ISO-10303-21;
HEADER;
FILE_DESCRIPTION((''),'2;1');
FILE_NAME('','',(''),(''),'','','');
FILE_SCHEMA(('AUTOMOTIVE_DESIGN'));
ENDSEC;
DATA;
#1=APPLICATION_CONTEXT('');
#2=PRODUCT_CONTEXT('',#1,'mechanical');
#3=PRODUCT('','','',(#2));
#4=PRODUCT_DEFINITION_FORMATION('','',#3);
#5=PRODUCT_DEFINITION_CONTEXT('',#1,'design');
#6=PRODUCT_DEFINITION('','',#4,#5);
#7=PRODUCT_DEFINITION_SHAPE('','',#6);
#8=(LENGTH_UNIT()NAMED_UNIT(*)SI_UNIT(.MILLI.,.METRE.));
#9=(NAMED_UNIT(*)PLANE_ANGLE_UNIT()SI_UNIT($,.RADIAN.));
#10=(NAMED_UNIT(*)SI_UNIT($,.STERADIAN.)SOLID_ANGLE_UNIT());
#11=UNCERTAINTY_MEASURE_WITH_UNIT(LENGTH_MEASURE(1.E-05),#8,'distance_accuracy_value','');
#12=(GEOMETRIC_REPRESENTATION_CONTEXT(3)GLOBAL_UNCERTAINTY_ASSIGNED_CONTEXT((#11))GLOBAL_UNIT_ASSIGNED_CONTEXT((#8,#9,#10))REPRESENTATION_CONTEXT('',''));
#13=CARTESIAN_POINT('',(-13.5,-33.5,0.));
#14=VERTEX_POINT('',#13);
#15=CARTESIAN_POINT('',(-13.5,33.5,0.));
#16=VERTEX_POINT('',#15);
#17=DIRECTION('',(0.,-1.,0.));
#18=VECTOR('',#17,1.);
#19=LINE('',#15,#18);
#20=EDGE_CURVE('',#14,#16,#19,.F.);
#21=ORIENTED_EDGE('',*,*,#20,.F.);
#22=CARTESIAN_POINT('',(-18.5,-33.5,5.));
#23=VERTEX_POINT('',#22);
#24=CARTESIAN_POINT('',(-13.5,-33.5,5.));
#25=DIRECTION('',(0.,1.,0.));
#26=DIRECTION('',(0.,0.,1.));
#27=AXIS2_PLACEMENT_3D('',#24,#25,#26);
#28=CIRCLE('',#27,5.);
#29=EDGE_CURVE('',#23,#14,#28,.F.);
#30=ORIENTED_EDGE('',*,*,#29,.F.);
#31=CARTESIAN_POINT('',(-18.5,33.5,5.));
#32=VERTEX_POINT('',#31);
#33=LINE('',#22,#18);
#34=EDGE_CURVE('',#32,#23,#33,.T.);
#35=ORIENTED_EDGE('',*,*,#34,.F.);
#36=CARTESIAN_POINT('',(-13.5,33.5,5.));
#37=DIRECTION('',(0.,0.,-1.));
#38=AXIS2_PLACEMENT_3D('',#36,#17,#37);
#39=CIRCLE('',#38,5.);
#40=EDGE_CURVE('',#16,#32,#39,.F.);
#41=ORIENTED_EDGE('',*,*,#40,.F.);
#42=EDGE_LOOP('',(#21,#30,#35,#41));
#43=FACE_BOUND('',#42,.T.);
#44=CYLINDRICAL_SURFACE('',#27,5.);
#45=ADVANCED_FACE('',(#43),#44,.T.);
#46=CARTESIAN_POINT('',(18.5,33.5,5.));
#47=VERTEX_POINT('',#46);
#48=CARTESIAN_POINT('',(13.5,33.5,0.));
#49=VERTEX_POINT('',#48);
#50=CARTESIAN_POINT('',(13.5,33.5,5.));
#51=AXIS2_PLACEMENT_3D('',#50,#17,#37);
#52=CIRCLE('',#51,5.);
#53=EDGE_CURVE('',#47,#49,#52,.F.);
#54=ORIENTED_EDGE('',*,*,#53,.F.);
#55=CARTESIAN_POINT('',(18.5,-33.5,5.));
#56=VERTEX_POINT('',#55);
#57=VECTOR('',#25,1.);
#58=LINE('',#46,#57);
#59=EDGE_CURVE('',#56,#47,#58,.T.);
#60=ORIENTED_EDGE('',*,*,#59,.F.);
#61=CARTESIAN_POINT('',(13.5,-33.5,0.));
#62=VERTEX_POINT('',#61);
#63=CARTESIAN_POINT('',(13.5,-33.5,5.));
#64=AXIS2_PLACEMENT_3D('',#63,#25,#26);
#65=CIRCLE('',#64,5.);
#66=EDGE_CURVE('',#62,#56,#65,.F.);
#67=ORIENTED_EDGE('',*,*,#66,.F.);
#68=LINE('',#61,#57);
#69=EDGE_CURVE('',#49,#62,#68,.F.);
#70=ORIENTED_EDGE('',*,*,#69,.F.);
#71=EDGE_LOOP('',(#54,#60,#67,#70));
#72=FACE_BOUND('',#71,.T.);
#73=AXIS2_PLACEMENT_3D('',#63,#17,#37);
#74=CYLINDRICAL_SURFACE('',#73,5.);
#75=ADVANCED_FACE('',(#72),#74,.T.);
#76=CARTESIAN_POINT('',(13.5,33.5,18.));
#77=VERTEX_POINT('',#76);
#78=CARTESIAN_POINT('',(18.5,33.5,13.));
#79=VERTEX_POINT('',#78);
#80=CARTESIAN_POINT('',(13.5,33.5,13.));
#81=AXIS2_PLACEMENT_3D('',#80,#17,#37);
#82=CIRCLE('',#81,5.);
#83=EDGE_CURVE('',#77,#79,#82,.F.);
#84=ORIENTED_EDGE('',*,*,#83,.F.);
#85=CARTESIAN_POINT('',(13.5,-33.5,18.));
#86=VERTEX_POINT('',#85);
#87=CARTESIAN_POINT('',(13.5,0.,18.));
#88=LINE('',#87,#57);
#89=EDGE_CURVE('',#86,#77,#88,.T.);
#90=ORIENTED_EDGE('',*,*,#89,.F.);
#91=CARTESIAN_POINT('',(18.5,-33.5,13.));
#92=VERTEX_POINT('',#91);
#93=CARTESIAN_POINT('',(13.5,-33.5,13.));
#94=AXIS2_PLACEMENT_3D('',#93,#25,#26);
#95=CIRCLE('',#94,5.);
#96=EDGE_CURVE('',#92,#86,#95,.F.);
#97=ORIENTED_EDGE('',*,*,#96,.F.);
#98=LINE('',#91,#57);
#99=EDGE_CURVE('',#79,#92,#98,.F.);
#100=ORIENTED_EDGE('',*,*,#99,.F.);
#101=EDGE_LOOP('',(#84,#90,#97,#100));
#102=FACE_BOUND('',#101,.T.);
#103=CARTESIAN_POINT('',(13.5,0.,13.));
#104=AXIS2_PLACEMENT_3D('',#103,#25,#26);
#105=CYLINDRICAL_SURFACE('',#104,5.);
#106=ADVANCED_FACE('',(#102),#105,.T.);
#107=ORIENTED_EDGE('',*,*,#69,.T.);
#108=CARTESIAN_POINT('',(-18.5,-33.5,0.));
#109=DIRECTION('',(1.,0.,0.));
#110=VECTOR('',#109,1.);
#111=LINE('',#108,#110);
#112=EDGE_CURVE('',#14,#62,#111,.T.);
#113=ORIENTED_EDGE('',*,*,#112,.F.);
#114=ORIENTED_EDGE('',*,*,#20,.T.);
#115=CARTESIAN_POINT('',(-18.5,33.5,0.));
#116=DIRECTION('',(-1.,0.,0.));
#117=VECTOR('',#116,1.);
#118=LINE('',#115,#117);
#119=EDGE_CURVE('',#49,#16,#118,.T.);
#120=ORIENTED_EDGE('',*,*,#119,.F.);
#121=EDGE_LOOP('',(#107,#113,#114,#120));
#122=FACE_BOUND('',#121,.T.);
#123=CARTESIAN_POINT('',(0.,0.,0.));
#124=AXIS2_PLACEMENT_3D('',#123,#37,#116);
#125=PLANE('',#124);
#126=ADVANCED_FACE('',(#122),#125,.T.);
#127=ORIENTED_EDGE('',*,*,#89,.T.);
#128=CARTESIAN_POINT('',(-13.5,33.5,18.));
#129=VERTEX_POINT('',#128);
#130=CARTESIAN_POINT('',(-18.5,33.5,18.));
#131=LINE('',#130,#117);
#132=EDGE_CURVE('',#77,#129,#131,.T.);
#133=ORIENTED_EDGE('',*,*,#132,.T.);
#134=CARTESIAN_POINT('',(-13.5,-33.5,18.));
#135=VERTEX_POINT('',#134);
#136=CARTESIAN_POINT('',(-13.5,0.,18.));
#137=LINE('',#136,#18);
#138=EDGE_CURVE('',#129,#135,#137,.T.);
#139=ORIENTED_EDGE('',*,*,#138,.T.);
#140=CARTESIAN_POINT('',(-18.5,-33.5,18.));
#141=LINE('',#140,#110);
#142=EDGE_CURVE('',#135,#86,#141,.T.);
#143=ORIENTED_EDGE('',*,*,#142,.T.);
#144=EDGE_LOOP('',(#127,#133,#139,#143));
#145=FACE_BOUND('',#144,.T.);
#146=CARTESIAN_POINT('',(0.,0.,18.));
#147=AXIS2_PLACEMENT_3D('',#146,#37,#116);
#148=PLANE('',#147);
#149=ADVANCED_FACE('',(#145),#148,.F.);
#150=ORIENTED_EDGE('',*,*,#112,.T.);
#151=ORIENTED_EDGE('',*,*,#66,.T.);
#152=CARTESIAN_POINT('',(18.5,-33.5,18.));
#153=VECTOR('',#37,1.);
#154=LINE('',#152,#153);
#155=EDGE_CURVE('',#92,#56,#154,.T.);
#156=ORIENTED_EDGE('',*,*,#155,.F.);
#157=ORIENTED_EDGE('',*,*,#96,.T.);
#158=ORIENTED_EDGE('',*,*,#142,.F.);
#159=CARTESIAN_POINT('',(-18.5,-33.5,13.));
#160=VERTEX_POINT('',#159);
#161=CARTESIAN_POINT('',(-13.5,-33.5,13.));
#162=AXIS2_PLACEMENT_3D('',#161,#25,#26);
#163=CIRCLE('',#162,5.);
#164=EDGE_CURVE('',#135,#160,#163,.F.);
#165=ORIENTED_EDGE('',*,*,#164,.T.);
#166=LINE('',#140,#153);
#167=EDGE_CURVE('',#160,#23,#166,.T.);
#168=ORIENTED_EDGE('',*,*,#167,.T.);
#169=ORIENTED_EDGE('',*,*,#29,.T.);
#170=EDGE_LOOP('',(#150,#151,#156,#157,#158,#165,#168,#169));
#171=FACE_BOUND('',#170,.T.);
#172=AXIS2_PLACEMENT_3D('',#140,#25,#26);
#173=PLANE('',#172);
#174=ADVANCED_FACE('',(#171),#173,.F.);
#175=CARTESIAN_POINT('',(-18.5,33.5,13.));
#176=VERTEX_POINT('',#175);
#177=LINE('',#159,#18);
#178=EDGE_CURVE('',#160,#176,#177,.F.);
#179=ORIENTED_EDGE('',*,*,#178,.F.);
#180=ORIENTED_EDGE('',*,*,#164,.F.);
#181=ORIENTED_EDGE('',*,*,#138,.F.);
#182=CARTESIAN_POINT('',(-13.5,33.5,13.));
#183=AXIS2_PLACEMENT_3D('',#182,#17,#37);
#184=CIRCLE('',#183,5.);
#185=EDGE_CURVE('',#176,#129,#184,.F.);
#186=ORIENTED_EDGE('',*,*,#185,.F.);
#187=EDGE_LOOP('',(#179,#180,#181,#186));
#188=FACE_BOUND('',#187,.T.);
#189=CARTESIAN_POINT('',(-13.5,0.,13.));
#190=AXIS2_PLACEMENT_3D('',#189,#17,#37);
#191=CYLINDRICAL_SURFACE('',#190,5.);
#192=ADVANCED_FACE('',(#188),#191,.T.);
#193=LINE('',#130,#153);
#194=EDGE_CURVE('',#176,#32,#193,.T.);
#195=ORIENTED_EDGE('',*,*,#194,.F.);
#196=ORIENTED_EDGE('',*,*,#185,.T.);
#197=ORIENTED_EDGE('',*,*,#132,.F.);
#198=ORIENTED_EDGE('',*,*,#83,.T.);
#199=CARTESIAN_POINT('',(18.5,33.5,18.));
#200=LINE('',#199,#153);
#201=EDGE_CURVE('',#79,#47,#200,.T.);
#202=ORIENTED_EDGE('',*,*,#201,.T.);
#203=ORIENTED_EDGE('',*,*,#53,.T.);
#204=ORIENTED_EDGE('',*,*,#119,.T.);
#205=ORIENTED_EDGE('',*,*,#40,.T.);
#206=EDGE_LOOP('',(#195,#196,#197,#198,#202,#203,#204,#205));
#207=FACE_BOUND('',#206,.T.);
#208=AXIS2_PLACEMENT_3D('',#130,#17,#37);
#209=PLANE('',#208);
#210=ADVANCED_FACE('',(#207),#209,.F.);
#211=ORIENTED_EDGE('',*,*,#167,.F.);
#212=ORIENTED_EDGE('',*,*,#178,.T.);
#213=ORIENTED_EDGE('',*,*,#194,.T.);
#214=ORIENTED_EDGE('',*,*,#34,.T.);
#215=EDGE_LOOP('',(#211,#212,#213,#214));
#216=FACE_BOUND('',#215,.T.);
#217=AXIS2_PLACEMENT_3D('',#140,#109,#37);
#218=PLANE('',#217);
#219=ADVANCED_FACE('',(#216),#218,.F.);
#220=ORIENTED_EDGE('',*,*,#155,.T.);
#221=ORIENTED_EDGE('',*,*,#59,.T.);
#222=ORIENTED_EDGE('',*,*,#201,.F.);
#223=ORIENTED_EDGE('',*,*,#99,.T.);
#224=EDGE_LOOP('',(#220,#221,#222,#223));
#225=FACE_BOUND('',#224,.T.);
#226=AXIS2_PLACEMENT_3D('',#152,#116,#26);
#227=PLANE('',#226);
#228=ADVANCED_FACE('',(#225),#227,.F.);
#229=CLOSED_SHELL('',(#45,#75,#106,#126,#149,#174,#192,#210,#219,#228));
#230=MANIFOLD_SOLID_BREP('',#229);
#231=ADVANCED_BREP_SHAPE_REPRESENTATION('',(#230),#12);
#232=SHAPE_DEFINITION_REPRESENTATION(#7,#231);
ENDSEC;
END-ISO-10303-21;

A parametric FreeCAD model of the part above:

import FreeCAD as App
import Part
import Sketcher
from FreeCAD import Vector
Q = App.Units.Quantity


def edges_at(feature, points):
    """Names of the edges that pass closest to the given points."""
    edges = feature.Shape.Edges
    near = lambda p: min(range(len(edges)), key=lambda i: edges[i].distToShape(Part.Vertex(*p))[0])
    return sorted({f"Edge{near(p) + 1}" for p in points})


def add_polygon(sketch, points):
    """Adds a closed chain of lines whose ends are joined by coincident constraints."""
    first, n = sketch.GeometryCount, len(points)
    for a, b in zip(points, points[1:] + points[:1]):
        sketch.addGeometry(Part.LineSegment(App.Vector(*a, 0), App.Vector(*b, 0)), False)
    for i in range(n):
        sketch.addConstraint(Sketcher.Constraint("Coincident", first + i, 2, first + (i + 1) % n, 1))

doc = App.newDocument("Part")
body = doc.addObject("PartDesign::Body", "Body")

# Sketch on XY plane
sketch1 = body.newObject("Sketcher::SketchObject", "Sketch")
sketch1.AttachmentSupport = (doc.getObject("XY_Plane"), [""])
sketch1.MapMode = "FlatFace"
add_polygon(sketch1, [(-18, 34), (-18, -34), (18, -34), (18, 34)])  # lines 0-3
sketch1.addConstraint(Sketcher.Constraint("Vertical", 0))
sketch1.addConstraint(Sketcher.Constraint("Horizontal", 1))
sketch1.addConstraint(Sketcher.Constraint("Vertical", 2))
sketch1.addConstraint(Sketcher.Constraint("Horizontal", 3))
sketch1.addConstraint(Sketcher.Constraint("Symmetric", 0, 2, 2, 2, -1, 1))
sketch1.addConstraint(Sketcher.Constraint("DistanceX", 1, 1, 1, 2, Q("37 mm")))
sketch1.addConstraint(Sketcher.Constraint("DistanceY", 0, 2, 0, 1, Q("67 mm")))
pad1 = body.newObject("PartDesign::Pad", "Pad")
pad1.Profile = sketch1
pad1.Length = 18
doc.recompute()

fillet = body.newObject("PartDesign::Fillet", "Fillet")
fillet.Base = (pad1, edges_at(pad1, [
    (-18.5, 0, 18),
    (18.5, 0, 18),
    (-18.5, 0, 0),
    (18.5, 0, 0),
]))
fillet.Radius = 5

doc.recompute()
